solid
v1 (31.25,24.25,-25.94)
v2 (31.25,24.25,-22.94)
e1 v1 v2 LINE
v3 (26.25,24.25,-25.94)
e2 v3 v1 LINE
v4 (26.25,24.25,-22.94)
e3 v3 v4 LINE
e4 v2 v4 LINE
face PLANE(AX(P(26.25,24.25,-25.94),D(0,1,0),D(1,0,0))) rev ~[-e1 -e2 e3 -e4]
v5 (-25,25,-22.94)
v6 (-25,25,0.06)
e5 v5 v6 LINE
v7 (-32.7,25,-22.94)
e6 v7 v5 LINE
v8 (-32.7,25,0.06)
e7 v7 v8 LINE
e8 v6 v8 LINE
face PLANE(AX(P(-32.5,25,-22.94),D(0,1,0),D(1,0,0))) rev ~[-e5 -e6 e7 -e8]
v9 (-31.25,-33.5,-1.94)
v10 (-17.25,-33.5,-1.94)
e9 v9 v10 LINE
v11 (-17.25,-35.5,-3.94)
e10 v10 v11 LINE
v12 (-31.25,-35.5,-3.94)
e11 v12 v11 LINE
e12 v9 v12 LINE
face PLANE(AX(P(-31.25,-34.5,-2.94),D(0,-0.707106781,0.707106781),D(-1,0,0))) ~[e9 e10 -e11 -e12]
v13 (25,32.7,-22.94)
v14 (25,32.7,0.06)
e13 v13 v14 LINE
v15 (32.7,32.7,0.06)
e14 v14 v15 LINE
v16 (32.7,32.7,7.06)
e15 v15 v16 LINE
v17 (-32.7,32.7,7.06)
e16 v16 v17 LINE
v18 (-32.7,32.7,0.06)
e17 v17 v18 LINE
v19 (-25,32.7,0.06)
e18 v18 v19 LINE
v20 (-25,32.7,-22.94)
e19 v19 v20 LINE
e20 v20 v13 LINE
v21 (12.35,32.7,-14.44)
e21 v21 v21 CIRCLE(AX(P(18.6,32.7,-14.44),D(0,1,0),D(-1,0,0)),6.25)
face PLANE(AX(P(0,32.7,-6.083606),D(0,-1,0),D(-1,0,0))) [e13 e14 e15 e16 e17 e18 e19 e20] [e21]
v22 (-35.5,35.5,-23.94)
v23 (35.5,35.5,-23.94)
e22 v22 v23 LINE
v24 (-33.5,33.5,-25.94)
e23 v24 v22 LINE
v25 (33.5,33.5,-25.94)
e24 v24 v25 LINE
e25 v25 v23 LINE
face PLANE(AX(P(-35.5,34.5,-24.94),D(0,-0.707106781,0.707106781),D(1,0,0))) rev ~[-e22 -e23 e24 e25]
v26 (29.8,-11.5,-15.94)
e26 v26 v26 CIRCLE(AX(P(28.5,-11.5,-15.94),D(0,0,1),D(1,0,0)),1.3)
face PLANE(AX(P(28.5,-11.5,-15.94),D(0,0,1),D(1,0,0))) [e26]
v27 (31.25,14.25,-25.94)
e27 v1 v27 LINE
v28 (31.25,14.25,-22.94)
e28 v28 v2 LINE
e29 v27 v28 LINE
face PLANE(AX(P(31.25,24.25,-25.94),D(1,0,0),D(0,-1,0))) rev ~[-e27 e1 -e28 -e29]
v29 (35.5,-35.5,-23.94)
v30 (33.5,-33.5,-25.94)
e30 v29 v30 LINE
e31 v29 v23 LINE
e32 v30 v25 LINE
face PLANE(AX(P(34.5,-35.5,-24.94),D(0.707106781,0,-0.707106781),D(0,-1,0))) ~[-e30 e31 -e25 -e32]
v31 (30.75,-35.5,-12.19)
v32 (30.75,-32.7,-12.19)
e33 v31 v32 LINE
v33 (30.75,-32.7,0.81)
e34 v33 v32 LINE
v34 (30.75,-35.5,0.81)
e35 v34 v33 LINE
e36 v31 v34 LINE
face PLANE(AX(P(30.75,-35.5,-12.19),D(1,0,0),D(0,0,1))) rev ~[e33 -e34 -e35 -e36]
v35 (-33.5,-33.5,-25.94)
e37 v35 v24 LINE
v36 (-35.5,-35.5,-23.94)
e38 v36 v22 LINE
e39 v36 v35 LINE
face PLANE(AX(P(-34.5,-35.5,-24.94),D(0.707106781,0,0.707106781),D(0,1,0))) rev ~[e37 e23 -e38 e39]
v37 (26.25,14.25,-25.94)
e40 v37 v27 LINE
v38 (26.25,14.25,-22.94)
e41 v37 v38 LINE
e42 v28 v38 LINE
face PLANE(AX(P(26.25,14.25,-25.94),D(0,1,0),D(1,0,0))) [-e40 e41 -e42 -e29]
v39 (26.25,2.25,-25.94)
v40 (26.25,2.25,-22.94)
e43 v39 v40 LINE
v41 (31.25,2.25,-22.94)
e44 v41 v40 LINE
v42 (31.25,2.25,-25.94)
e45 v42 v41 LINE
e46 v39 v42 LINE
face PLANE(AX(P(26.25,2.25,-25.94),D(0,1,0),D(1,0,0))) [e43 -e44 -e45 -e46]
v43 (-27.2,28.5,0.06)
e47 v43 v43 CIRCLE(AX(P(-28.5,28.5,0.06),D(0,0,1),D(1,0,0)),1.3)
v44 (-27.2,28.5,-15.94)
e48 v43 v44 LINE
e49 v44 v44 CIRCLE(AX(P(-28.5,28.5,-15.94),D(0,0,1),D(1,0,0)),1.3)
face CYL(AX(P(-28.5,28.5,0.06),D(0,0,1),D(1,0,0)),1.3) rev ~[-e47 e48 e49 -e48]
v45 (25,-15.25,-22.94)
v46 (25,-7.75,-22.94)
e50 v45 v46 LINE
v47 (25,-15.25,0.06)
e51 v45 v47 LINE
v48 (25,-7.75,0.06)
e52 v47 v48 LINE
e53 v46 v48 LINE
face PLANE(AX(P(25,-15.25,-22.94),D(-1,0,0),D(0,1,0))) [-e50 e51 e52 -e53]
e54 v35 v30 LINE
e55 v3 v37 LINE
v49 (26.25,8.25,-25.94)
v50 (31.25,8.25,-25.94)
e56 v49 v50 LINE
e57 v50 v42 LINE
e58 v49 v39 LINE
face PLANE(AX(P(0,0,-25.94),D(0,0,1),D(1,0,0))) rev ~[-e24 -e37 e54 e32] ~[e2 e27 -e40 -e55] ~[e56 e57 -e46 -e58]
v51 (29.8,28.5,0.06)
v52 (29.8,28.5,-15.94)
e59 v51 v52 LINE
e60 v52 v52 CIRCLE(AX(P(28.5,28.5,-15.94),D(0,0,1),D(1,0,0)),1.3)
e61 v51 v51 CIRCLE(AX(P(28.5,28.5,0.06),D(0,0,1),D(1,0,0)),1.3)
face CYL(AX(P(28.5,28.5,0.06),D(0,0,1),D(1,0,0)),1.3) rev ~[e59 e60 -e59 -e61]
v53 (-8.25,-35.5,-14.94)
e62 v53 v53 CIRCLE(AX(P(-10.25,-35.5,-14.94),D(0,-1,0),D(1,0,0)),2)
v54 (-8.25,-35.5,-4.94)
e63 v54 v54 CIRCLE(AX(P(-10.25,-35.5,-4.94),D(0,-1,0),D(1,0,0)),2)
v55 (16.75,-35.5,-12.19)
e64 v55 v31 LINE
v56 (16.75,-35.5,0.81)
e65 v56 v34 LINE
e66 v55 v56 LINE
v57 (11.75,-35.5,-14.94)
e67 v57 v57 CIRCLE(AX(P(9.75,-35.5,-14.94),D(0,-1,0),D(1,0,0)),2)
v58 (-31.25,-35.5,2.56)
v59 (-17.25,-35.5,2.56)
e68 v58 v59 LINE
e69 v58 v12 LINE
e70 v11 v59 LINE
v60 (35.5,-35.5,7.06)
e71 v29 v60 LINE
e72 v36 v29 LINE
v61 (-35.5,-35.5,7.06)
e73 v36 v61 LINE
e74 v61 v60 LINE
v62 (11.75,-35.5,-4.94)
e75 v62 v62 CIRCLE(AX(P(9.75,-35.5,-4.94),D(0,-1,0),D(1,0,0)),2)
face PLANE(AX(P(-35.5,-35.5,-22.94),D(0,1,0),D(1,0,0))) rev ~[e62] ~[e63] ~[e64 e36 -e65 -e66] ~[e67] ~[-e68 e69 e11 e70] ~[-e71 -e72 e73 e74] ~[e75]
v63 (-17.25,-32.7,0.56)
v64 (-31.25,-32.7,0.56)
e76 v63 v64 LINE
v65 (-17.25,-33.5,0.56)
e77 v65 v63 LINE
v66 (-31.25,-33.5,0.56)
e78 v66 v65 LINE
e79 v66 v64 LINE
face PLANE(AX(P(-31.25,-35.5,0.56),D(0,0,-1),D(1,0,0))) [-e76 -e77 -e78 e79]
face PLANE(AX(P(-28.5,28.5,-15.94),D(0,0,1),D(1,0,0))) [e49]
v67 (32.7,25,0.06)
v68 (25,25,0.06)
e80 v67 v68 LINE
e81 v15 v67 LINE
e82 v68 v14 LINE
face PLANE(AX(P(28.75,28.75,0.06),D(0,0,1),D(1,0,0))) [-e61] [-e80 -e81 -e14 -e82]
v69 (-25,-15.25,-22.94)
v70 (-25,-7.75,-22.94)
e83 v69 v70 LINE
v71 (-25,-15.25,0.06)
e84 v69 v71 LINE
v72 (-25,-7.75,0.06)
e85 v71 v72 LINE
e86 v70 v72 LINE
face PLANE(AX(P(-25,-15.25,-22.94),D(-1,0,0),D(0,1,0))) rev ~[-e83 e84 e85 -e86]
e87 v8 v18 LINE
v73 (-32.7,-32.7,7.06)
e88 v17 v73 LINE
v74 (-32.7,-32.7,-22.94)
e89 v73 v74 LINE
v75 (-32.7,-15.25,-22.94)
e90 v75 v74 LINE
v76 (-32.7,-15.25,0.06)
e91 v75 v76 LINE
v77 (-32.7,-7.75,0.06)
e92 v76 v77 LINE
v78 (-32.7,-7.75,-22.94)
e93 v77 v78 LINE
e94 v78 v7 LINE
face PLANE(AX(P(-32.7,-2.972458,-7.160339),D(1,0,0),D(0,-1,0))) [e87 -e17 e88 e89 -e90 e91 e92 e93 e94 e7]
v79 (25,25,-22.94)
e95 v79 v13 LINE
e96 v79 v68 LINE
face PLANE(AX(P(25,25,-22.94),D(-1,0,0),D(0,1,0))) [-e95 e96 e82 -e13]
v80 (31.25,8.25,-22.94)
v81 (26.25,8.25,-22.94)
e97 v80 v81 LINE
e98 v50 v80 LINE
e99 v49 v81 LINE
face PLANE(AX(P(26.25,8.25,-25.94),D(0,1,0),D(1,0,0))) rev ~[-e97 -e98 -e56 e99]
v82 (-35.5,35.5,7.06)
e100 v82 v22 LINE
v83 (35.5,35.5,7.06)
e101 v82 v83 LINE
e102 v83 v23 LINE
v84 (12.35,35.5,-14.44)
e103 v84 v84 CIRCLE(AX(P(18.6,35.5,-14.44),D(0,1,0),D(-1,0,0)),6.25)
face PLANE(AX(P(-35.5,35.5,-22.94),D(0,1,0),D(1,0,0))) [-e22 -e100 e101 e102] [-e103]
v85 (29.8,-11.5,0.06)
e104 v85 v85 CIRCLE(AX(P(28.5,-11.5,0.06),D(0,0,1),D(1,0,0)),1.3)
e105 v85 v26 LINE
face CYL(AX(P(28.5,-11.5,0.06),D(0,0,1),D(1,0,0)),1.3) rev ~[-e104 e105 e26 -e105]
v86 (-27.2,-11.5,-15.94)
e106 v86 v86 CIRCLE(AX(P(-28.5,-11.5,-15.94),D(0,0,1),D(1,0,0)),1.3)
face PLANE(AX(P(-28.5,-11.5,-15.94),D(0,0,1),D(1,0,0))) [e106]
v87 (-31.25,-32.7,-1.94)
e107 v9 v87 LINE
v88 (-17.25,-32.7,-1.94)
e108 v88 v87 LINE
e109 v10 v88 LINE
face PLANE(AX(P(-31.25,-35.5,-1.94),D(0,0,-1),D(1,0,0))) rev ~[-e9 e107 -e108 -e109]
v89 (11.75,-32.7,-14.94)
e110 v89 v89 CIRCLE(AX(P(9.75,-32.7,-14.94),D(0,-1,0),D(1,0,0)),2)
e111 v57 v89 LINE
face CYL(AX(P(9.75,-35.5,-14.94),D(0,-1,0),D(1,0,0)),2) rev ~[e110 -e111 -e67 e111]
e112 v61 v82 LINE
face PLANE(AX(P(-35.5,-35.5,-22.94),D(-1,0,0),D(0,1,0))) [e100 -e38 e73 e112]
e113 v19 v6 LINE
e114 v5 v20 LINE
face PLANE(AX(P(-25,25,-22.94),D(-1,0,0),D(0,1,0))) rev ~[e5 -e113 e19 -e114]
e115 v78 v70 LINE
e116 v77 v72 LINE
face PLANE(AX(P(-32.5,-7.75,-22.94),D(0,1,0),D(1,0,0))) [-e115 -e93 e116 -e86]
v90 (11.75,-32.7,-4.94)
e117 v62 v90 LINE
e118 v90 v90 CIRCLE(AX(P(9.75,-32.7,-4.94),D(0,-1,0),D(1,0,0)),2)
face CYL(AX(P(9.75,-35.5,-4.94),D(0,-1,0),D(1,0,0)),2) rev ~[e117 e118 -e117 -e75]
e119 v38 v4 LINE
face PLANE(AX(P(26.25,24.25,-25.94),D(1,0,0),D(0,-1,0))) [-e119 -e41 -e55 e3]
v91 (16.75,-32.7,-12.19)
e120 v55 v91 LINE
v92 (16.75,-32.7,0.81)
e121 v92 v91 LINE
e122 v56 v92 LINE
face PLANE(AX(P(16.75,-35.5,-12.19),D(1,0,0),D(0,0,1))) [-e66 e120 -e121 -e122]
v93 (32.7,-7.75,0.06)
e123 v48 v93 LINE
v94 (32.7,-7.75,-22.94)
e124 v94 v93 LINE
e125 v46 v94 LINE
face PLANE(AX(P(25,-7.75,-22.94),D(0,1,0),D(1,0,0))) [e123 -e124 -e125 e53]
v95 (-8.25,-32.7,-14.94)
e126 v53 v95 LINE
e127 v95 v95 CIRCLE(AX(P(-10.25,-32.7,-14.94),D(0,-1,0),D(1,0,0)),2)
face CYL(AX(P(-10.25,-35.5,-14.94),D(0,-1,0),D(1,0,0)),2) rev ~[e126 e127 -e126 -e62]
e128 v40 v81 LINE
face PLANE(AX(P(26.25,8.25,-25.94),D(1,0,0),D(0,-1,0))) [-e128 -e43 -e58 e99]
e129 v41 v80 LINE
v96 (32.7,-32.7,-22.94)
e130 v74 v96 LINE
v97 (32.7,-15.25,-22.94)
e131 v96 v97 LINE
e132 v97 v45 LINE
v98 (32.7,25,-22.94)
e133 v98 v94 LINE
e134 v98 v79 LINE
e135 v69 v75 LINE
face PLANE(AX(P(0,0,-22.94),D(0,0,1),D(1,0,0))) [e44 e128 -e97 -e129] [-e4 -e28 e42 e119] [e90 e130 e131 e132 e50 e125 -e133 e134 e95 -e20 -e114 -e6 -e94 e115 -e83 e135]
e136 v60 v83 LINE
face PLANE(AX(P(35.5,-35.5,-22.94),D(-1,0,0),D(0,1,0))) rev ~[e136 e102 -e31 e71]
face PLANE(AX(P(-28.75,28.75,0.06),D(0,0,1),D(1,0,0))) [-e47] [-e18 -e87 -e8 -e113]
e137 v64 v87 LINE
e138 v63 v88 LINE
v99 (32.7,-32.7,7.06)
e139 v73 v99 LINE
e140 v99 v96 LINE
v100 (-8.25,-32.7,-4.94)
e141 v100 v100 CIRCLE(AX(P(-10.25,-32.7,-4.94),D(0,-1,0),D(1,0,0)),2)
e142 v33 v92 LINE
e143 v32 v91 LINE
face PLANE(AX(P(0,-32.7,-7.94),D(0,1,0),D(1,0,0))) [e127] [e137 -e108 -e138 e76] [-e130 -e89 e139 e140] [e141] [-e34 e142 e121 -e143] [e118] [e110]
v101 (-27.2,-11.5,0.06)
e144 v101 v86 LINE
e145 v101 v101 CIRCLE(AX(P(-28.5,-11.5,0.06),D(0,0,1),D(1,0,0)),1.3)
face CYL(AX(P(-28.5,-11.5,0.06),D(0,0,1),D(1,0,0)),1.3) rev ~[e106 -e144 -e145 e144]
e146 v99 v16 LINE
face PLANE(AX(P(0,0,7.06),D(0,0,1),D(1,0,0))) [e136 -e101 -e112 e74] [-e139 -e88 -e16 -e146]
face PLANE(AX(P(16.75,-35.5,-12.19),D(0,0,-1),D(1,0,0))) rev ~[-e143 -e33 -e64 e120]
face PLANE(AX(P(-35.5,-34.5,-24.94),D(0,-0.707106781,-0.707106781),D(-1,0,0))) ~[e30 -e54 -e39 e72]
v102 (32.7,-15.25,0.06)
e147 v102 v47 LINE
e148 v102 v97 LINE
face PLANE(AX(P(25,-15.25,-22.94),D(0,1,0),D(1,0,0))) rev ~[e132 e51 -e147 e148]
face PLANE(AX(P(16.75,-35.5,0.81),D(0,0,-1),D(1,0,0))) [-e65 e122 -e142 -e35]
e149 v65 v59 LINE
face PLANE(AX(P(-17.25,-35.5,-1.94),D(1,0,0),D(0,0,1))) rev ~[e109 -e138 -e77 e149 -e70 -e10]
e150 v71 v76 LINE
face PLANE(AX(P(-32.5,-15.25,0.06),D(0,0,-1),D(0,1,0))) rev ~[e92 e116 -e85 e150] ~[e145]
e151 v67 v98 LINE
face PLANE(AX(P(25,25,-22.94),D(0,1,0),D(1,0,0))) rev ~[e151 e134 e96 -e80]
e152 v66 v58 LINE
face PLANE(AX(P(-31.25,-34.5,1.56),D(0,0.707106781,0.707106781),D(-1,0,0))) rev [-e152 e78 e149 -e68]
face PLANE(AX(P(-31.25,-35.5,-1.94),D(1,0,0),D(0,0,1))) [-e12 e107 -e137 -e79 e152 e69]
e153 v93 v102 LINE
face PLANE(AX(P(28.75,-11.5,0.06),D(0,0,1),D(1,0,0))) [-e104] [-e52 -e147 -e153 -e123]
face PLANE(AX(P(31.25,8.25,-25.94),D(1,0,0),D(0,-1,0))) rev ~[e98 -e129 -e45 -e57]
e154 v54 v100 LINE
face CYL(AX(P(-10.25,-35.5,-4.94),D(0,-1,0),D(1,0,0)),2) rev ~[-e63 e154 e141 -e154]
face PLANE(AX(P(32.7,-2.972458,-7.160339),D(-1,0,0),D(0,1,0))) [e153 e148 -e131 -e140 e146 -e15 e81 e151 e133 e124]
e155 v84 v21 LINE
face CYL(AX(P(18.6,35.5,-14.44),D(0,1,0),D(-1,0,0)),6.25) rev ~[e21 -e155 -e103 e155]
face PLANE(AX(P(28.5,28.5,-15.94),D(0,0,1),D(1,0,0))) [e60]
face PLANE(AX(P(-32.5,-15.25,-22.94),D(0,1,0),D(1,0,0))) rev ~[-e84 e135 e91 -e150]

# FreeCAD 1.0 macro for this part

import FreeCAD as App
import Part
import Sketcher

V = App.Vector
Q = App.Units.Quantity


def edges_at(feature, points):
    """Names of the edges that pass closest to the given points."""
    edges = feature.Shape.Edges
    near = lambda p: min(range(len(edges)), key=lambda i: edges[i].distToShape(Part.Vertex(*p))[0])
    return sorted({f"Edge{near(p) + 1}" for p in points})

doc = App.newDocument("Part")
params = doc.addObject("Spreadsheet::Sheet", "Params")
for row, (alias, value) in enumerate([
    ("sketch1_width", "71 mm"),
    ("pad1_length", "3 mm"),
    ("sketch2_width", "71 mm"),
    ("sketch2_width2", "65 mm"),
    ("pad2_length", "30 mm"),
    ("sketch3_width", "7.5 mm"),
    ("pad3_length", "23 mm"),
    ("sketch4_diameter", "2.6 mm"),
    ("pocket1_length", "16 mm"),
    ("sketch5_width", "65 mm"),
    ("sketch5_height", "23 mm"),
    ("sketch5_height2", "7 mm"),
    ("sketch5_width2", "7.5 mm"),
    ("sketch5_width3", "17.25 mm"),
    ("pocket2_length", "0.2 mm"),
    ("sketch6_width", "65 mm"),
    ("sketch6_height", "23 mm"),
    ("sketch6_height2", "30 mm"),
    ("sketch6_width2", "7.5 mm"),
    ("sketch6_width3", "32.75 mm"),
    ("pocket3_length", "0.2 mm"),
    ("sketch7_width", "50 mm"),
    ("sketch7_height", "23 mm"),
    ("sketch7_height2", "7 mm"),
    ("sketch7_width2", "7.7 mm"),
    ("pocket4_length", "0.2 mm"),
    ("sketch8_height", "30 mm"),
    ("sketch8_width", "65.4 mm"),
    ("pocket5_length", "0.2 mm"),
    ("sketch9_width", "14 mm"),
    ("sketch9_height", "13 mm"),
    ("sketch9_height2", "2.5 mm"),
    ("pocket6_length", "5 mm"),
    ("chamfer_size", "2 mm"),
    ("sketch10_diameter", "12.5 mm"),
    ("pocket7_length", "5 mm"),
    ("sketch11_width", "5 mm"),
    ("sketch11_height", "10 mm"),
    ("sketch11_height2", "6 mm"),
    ("pocket8_length", "5 mm"),
    ("chamfer2_size", "2 mm"),
    ("sketch12_diameter", "4 mm"),
    ("pocket9_length", "5 mm"),
], start=1):
    params.set(f"A{row}", alias)
    params.set(f"B{row}", "=" + value)
    params.setAlias(f"B{row}", alias)

body = doc.addObject("PartDesign::Body", "Body")

sketch1 = body.newObject("Sketcher::SketchObject", "Sketch")
sketch1.AttachmentSupport = (doc.getObject("XY_Plane"), [""])
sketch1.MapMode = "FlatFace"
sketch1.addGeometry(Part.LineSegment(V(-35.5, 35.5, 0), V(-35.5, -35.5, 0)), False)
sketch1.addGeometry(Part.LineSegment(V(-35.5, -35.5, 0), V(35.5, -35.5, 0)), False)
sketch1.addGeometry(Part.LineSegment(V(35.5, -35.5, 0), V(35.5, 35.5, 0)), False)
sketch1.addGeometry(Part.LineSegment(V(35.5, 35.5, 0), V(-35.5, 35.5, 0)), False)
sketch1.addConstraint(Sketcher.Constraint("Coincident", 0, 2, 1, 1))
sketch1.addConstraint(Sketcher.Constraint("Coincident", 1, 2, 2, 1))
sketch1.addConstraint(Sketcher.Constraint("Coincident", 2, 2, 3, 1))
sketch1.addConstraint(Sketcher.Constraint("Coincident", 3, 2, 0, 1))
sketch1.addConstraint(Sketcher.Constraint("Vertical", 0))
sketch1.addConstraint(Sketcher.Constraint("Horizontal", 1))
sketch1.addConstraint(Sketcher.Constraint("Vertical", 2))
sketch1.addConstraint(Sketcher.Constraint("Horizontal", 3))
sketch1.addConstraint(Sketcher.Constraint("Symmetric", 0, 2, 2, 2, -1, 1))
sketch1.addConstraint(Sketcher.Constraint("Equal", 3, 0))
sketch1.addConstraint(Sketcher.Constraint("DistanceX", 1, 1, 1, 2, Q("71 mm")))
sketch1.setExpression("Constraints[10]", "Params.sketch1_width")
pad1 = body.newObject("PartDesign::Pad", "Pad")
pad1.Profile = sketch1
pad1.setExpression("Length", "Params.pad1_length")

sketch2 = body.newObject("Sketcher::SketchObject", "Sketch001")
sketch2.AttachmentSupport = (doc.getObject("XY_Plane"), [""])
sketch2.MapMode = "FlatFace"
sketch2.AttachmentOffset = App.Placement(V(0, 0, 3), App.Rotation())
sketch2.addGeometry(Part.LineSegment(V(-35.5, 35.5, 0), V(-35.5, -35.5, 0)), False)
sketch2.addGeometry(Part.LineSegment(V(-35.5, -35.5, 0), V(35.5, -35.5, 0)), False)
sketch2.addGeometry(Part.LineSegment(V(35.5, -35.5, 0), V(35.5, 35.5, 0)), False)
sketch2.addGeometry(Part.LineSegment(V(35.5, 35.5, 0), V(-35.5, 35.5, 0)), False)
sketch2.addGeometry(Part.LineSegment(V(32.5, -32.5, 0), V(-32.5, -32.5, 0)), False)
sketch2.addGeometry(Part.LineSegment(V(-32.5, -32.5, 0), V(-32.5, 32.5, 0)), False)
sketch2.addGeometry(Part.LineSegment(V(-32.5, 32.5, 0), V(32.5, 32.5, 0)), False)
sketch2.addGeometry(Part.LineSegment(V(32.5, 32.5, 0), V(32.5, -32.5, 0)), False)
sketch2.addConstraint(Sketcher.Constraint("Coincident", 0, 2, 1, 1))
sketch2.addConstraint(Sketcher.Constraint("Coincident", 1, 2, 2, 1))
sketch2.addConstraint(Sketcher.Constraint("Coincident", 2, 2, 3, 1))
sketch2.addConstraint(Sketcher.Constraint("Coincident", 3, 2, 0, 1))
sketch2.addConstraint(Sketcher.Constraint("Coincident", 4, 2, 5, 1))
sketch2.addConstraint(Sketcher.Constraint("Coincident", 5, 2, 6, 1))
sketch2.addConstraint(Sketcher.Constraint("Coincident", 6, 2, 7, 1))
sketch2.addConstraint(Sketcher.Constraint("Coincident", 7, 2, 4, 1))
sketch2.addConstraint(Sketcher.Constraint("Vertical", 0))
sketch2.addConstraint(Sketcher.Constraint("Horizontal", 1))
sketch2.addConstraint(Sketcher.Constraint("Vertical", 2))
sketch2.addConstraint(Sketcher.Constraint("Horizontal", 3))
sketch2.addConstraint(Sketcher.Constraint("Horizontal", 4))
sketch2.addConstraint(Sketcher.Constraint("Vertical", 5))
sketch2.addConstraint(Sketcher.Constraint("Horizontal", 6))
sketch2.addConstraint(Sketcher.Constraint("Vertical", 7))
sketch2.addConstraint(Sketcher.Constraint("Symmetric", 0, 2, 2, 2, -1, 1))
sketch2.addConstraint(Sketcher.Constraint("Symmetric", 4, 2, 6, 2, -1, 1))
sketch2.addConstraint(Sketcher.Constraint("Equal", 3, 0))
sketch2.addConstraint(Sketcher.Constraint("Equal", 6, 5))
sketch2.addConstraint(Sketcher.Constraint("DistanceX", 1, 1, 1, 2, Q("71 mm")))
sketch2.addConstraint(Sketcher.Constraint("DistanceX", 4, 2, 4, 1, Q("65 mm")))
sketch2.setExpression("Constraints[20]", "Params.sketch2_width")
sketch2.setExpression("Constraints[21]", "Params.sketch2_width2")
pad2 = body.newObject("PartDesign::Pad", "Pad001")
pad2.Profile = sketch2
pad2.setExpression("Length", "Params.pad2_length")

sketch3 = body.newObject("Sketcher::SketchObject", "Sketch002")
sketch3.AttachmentSupport = (doc.getObject("XY_Plane"), [""])
sketch3.MapMode = "FlatFace"
sketch3.AttachmentOffset = App.Placement(V(0, 0, 3), App.Rotation())
sketch3.addGeometry(Part.LineSegment(V(-32.5, 32.5, 0), V(-32.5, 25, 0)), False)
sketch3.addGeometry(Part.LineSegment(V(-32.5, 25, 0), V(-25, 25, 0)), False)
sketch3.addGeometry(Part.LineSegment(V(-25, 25, 0), V(-25, 32.5, 0)), False)
sketch3.addGeometry(Part.LineSegment(V(-25, 32.5, 0), V(-32.5, 32.5, 0)), False)
sketch3.addGeometry(Part.LineSegment(V(25, 32.5, 0), V(25, 25, 0)), False)
sketch3.addGeometry(Part.LineSegment(V(25, 25, 0), V(32.5, 25, 0)), False)
sketch3.addGeometry(Part.LineSegment(V(32.5, 25, 0), V(32.5, 32.5, 0)), False)
sketch3.addGeometry(Part.LineSegment(V(32.5, 32.5, 0), V(25, 32.5, 0)), False)
sketch3.addGeometry(Part.LineSegment(V(25, -7.75, 0), V(25, -15.25, 0)), False)
sketch3.addGeometry(Part.LineSegment(V(25, -15.25, 0), V(32.5, -15.25, 0)), False)
sketch3.addGeometry(Part.LineSegment(V(32.5, -15.25, 0), V(32.5, -7.75, 0)), False)
sketch3.addGeometry(Part.LineSegment(V(32.5, -7.75, 0), V(25, -7.75, 0)), False)
sketch3.addGeometry(Part.LineSegment(V(-32.5, -7.75, 0), V(-32.5, -15.25, 0)), False)
sketch3.addGeometry(Part.LineSegment(V(-32.5, -15.25, 0), V(-25, -15.25, 0)), False)
sketch3.addGeometry(Part.LineSegment(V(-25, -15.25, 0), V(-25, -7.75, 0)), False)
sketch3.addGeometry(Part.LineSegment(V(-25, -7.75, 0), V(-32.5, -7.75, 0)), False)
sketch3.addConstraint(Sketcher.Constraint("Coincident", 0, 2, 1, 1))
sketch3.addConstraint(Sketcher.Constraint("Coincident", 1, 2, 2, 1))
sketch3.addConstraint(Sketcher.Constraint("Coincident", 2, 2, 3, 1))
sketch3.addConstraint(Sketcher.Constraint("Coincident", 3, 2, 0, 1))
sketch3.addConstraint(Sketcher.Constraint("Coincident", 4, 2, 5, 1))
sketch3.addConstraint(Sketcher.Constraint("Coincident", 5, 2, 6, 1))
sketch3.addConstraint(Sketcher.Constraint("Coincident", 6, 2, 7, 1))
sketch3.addConstraint(Sketcher.Constraint("Coincident", 7, 2, 4, 1))
sketch3.addConstraint(Sketcher.Constraint("Coincident", 8, 2, 9, 1))
sketch3.addConstraint(Sketcher.Constraint("Coincident", 9, 2, 10, 1))
sketch3.addConstraint(Sketcher.Constraint("Coincident", 10, 2, 11, 1))
sketch3.addConstraint(Sketcher.Constraint("Coincident", 11, 2, 8, 1))
sketch3.addConstraint(Sketcher.Constraint("Coincident", 12, 2, 13, 1))
sketch3.addConstraint(Sketcher.Constraint("Coincident", 13, 2, 14, 1))
sketch3.addConstraint(Sketcher.Constraint("Coincident", 14, 2, 15, 1))
sketch3.addConstraint(Sketcher.Constraint("Coincident", 15, 2, 12, 1))
sketch3.addConstraint(Sketcher.Constraint("Vertical", 0))
sketch3.addConstraint(Sketcher.Constraint("Horizontal", 1))
sketch3.addConstraint(Sketcher.Constraint("Vertical", 2))
sketch3.addConstraint(Sketcher.Constraint("Horizontal", 3))
sketch3.addConstraint(Sketcher.Constraint("Vertical", 4))
sketch3.addConstraint(Sketcher.Constraint("Horizontal", 5))
sketch3.addConstraint(Sketcher.Constraint("Vertical", 6))
sketch3.addConstraint(Sketcher.Constraint("Horizontal", 7))
sketch3.addConstraint(Sketcher.Constraint("Vertical", 8))
sketch3.addConstraint(Sketcher.Constraint("Horizontal", 9))
sketch3.addConstraint(Sketcher.Constraint("Vertical", 10))
sketch3.addConstraint(Sketcher.Constraint("Horizontal", 11))
sketch3.addConstraint(Sketcher.Constraint("Vertical", 12))
sketch3.addConstraint(Sketcher.Constraint("Horizontal", 13))
sketch3.addConstraint(Sketcher.Constraint("Vertical", 14))
sketch3.addConstraint(Sketcher.Constraint("Horizontal", 15))
sketch3.addConstraint(Sketcher.Constraint("Symmetric", 1, 2, 4, 2, -2))
sketch3.addConstraint(Sketcher.Constraint("Symmetric", 3, 2, 6, 2, -2))
sketch3.addConstraint(Sketcher.Constraint("Symmetric", 9, 2, 12, 2, -2))
sketch3.addConstraint(Sketcher.Constraint("Symmetric", 11, 2, 14, 2, -2))
sketch3.addConstraint(Sketcher.Constraint("Vertical", 7, 2, 8, 2))
sketch3.addConstraint(Sketcher.Constraint("Vertical", 6, 2, 9, 2))
sketch3.addConstraint(Sketcher.Constraint("Equal", 15, 0))
sketch3.addConstraint(Sketcher.Constraint("Equal", 6, 8))
sketch3.addConstraint(Sketcher.Constraint("DistanceX", 1, 1, 1, 2, Q("7.5 mm")))
sketch3.addConstraint(Sketcher.Constraint("DistanceY", -1, 1, 0, 2, Q("25 mm")))
sketch3.addConstraint(Sketcher.Constraint("DistanceX", 1, 2, -1, 1, Q("25 mm")))
sketch3.addConstraint(Sketcher.Constraint("DistanceY", 8, 2, -1, 1, Q("15.25 mm")))
sketch3.setExpression("Constraints[40]", "Params.sketch3_width")
pad3 = body.newObject("PartDesign::Pad", "Pad002")
pad3.Profile = sketch3
pad3.setExpression("Length", "Params.pad3_length")

sketch4 = body.newObject("Sketcher::SketchObject", "Sketch003")
sketch4.AttachmentSupport = (doc.getObject("XY_Plane"), [""])
sketch4.MapMode = "FlatFace"
sketch4.AttachmentOffset = App.Placement(V(0, 0, 26), App.Rotation())
sketch4.addGeometry(Part.Circle(V(-28.5, 28.5, 0), V(0, 0, 1), 1.3), False)
sketch4.addGeometry(Part.Circle(V(28.5, 28.5, 0), V(0, 0, 1), 1.3), False)
sketch4.addGeometry(Part.Circle(V(28.5, -11.5, 0), V(0, 0, 1), 1.3), False)
sketch4.addGeometry(Part.Circle(V(-28.5, -11.5, 0), V(0, 0, 1), 1.3), False)
sketch4.addConstraint(Sketcher.Constraint("Equal", 0, 1))
sketch4.addConstraint(Sketcher.Constraint("Equal", 1, 2))
sketch4.addConstraint(Sketcher.Constraint("Equal", 2, 3))
sketch4.addConstraint(Sketcher.Constraint("Symmetric", 0, 3, 1, 3, -2))
sketch4.addConstraint(Sketcher.Constraint("Symmetric", 2, 3, 3, 3, -2))
sketch4.addConstraint(Sketcher.Constraint("Vertical", 1, 3, 2, 3))
sketch4.addConstraint(Sketcher.Constraint("Diameter", 0, Q("2.6 mm")))
sketch4.addConstraint(Sketcher.Constraint("DistanceX", 0, 3, 1, 3, Q("57 mm")))
sketch4.addConstraint(Sketcher.Constraint("DistanceY", 2, 3, 1, 3, Q("40 mm")))
sketch4.addConstraint(Sketcher.Constraint("DistanceY", -1, 1, 0, 3, Q("28.5 mm")))
sketch4.setExpression("Constraints[6]", "Params.sketch4_diameter")
pocket1 = body.newObject("PartDesign::Pocket", "Pocket")
pocket1.Profile = sketch4
pocket1.setExpression("Length", "Params.pocket1_length")

sketch5 = body.newObject("Sketcher::SketchObject", "Sketch004")
sketch5.AttachmentSupport = (doc.getObject("YZ_Plane"), [""])
sketch5.MapMode = "FlatFace"
sketch5.AttachmentOffset = App.Placement(V(0, 0, -32.5), App.Rotation())
sketch5.addGeometry(Part.LineSegment(V(-32.5, 3, 0), V(-15.25, 3, 0)), False)
sketch5.addGeometry(Part.LineSegment(V(-15.25, 3, 0), V(-15.25, 26, 0)), False)
sketch5.addGeometry(Part.LineSegment(V(-15.25, 26, 0), V(-7.75, 26, 0)), False)
sketch5.addGeometry(Part.LineSegment(V(-7.75, 26, 0), V(-7.75, 3, 0)), False)
sketch5.addGeometry(Part.LineSegment(V(-7.75, 3, 0), V(25, 3, 0)), False)
sketch5.addGeometry(Part.LineSegment(V(25, 3, 0), V(25, 26, 0)), False)
sketch5.addGeometry(Part.LineSegment(V(25, 26, 0), V(32.5, 26, 0)), False)
sketch5.addGeometry(Part.LineSegment(V(32.5, 26, 0), V(32.5, 33, 0)), False)
sketch5.addGeometry(Part.LineSegment(V(32.5, 33, 0), V(-32.5, 33, 0)), False)
sketch5.addGeometry(Part.LineSegment(V(-32.5, 33, 0), V(-32.5, 3, 0)), False)
sketch5.addConstraint(Sketcher.Constraint("Coincident", 0, 2, 1, 1))
sketch5.addConstraint(Sketcher.Constraint("Coincident", 1, 2, 2, 1))
sketch5.addConstraint(Sketcher.Constraint("Coincident", 2, 2, 3, 1))
sketch5.addConstraint(Sketcher.Constraint("Coincident", 3, 2, 4, 1))
sketch5.addConstraint(Sketcher.Constraint("Coincident", 4, 2, 5, 1))
sketch5.addConstraint(Sketcher.Constraint("Coincident", 5, 2, 6, 1))
sketch5.addConstraint(Sketcher.Constraint("Coincident", 6, 2, 7, 1))
sketch5.addConstraint(Sketcher.Constraint("Coincident", 7, 2, 8, 1))
sketch5.addConstraint(Sketcher.Constraint("Coincident", 8, 2, 9, 1))
sketch5.addConstraint(Sketcher.Constraint("Coincident", 9, 2, 0, 1))
sketch5.addConstraint(Sketcher.Constraint("Horizontal", 0))
sketch5.addConstraint(Sketcher.Constraint("Vertical", 1))
sketch5.addConstraint(Sketcher.Constraint("Horizontal", 2))
sketch5.addConstraint(Sketcher.Constraint("Vertical", 3))
sketch5.addConstraint(Sketcher.Constraint("Horizontal", 4))
sketch5.addConstraint(Sketcher.Constraint("Vertical", 5))
sketch5.addConstraint(Sketcher.Constraint("Horizontal", 6))
sketch5.addConstraint(Sketcher.Constraint("Vertical", 7))
sketch5.addConstraint(Sketcher.Constraint("Horizontal", 8))
sketch5.addConstraint(Sketcher.Constraint("Vertical", 9))
sketch5.addConstraint(Sketcher.Constraint("Horizontal", 0, 2, 3, 2))
sketch5.addConstraint(Sketcher.Constraint("Horizontal", 2, 2, 5, 2))
sketch5.addConstraint(Sketcher.Constraint("Equal", 2, 6))
sketch5.addConstraint(Sketcher.Constraint("DistanceX", 8, 2, 8, 1, Q("65 mm")))
sketch5.addConstraint(Sketcher.Constraint("DistanceY", 1, 1, 1, 2, Q("23 mm")))
sketch5.addConstraint(Sketcher.Constraint("DistanceY", 7, 1, 7, 2, Q("7 mm")))
sketch5.addConstraint(Sketcher.Constraint("DistanceX", 2, 1, 2, 2, Q("7.5 mm")))
sketch5.addConstraint(Sketcher.Constraint("DistanceY", -1, 1, 0, 2, Q("3 mm")))
sketch5.addConstraint(Sketcher.Constraint("DistanceX", -1, 1, 4, 2, Q("25 mm")))
sketch5.addConstraint(Sketcher.Constraint("DistanceX", 0, 1, 0, 2, Q("17.25 mm")))
sketch5.setExpression("Constraints[23]", "Params.sketch5_width")
sketch5.setExpression("Constraints[24]", "Params.sketch5_height")
sketch5.setExpression("Constraints[25]", "Params.sketch5_height2")
sketch5.setExpression("Constraints[26]", "Params.sketch5_width2")
sketch5.setExpression("Constraints[29]", "Params.sketch5_width3")
pocket2 = body.newObject("PartDesign::Pocket", "Pocket001")
pocket2.Profile = sketch5
pocket2.setExpression("Length", "Params.pocket2_length")

sketch6 = body.newObject("Sketcher::SketchObject", "Sketch005")
sketch6.AttachmentSupport = (doc.getObject("YZ_Plane"), [""])
sketch6.MapMode = "FlatFace"
sketch6.AttachmentOffset = App.Placement(V(0, 0, 32.5), App.Rotation())
sketch6.addGeometry(Part.LineSegment(V(32.5, 26, 0), V(25, 26, 0)), False)
sketch6.addGeometry(Part.LineSegment(V(25, 26, 0), V(25, 3, 0)), False)
sketch6.addGeometry(Part.LineSegment(V(25, 3, 0), V(-7.75, 3, 0)), False)
sketch6.addGeometry(Part.LineSegment(V(-7.75, 3, 0), V(-7.75, 26, 0)), False)
sketch6.addGeometry(Part.LineSegment(V(-7.75, 26, 0), V(-15.25, 26, 0)), False)
sketch6.addGeometry(Part.LineSegment(V(-15.25, 26, 0), V(-15.25, 3, 0)), False)
sketch6.addGeometry(Part.LineSegment(V(-15.25, 3, 0), V(-32.5, 3, 0)), False)
sketch6.addGeometry(Part.LineSegment(V(-32.5, 3, 0), V(-32.5, 33, 0)), False)
sketch6.addGeometry(Part.LineSegment(V(-32.5, 33, 0), V(32.5, 33, 0)), False)
sketch6.addGeometry(Part.LineSegment(V(32.5, 33, 0), V(32.5, 26, 0)), False)
sketch6.addConstraint(Sketcher.Constraint("Coincident", 0, 2, 1, 1))
sketch6.addConstraint(Sketcher.Constraint("Coincident", 1, 2, 2, 1))
sketch6.addConstraint(Sketcher.Constraint("Coincident", 2, 2, 3, 1))
sketch6.addConstraint(Sketcher.Constraint("Coincident", 3, 2, 4, 1))
sketch6.addConstraint(Sketcher.Constraint("Coincident", 4, 2, 5, 1))
sketch6.addConstraint(Sketcher.Constraint("Coincident", 5, 2, 6, 1))
sketch6.addConstraint(Sketcher.Constraint("Coincident", 6, 2, 7, 1))
sketch6.addConstraint(Sketcher.Constraint("Coincident", 7, 2, 8, 1))
sketch6.addConstraint(Sketcher.Constraint("Coincident", 8, 2, 9, 1))
sketch6.addConstraint(Sketcher.Constraint("Coincident", 9, 2, 0, 1))
sketch6.addConstraint(Sketcher.Constraint("Horizontal", 0))
sketch6.addConstraint(Sketcher.Constraint("Vertical", 1))
sketch6.addConstraint(Sketcher.Constraint("Horizontal", 2))
sketch6.addConstraint(Sketcher.Constraint("Vertical", 3))
sketch6.addConstraint(Sketcher.Constraint("Horizontal", 4))
sketch6.addConstraint(Sketcher.Constraint("Vertical", 5))
sketch6.addConstraint(Sketcher.Constraint("Horizontal", 6))
sketch6.addConstraint(Sketcher.Constraint("Vertical", 7))
sketch6.addConstraint(Sketcher.Constraint("Horizontal", 8))
sketch6.addConstraint(Sketcher.Constraint("Vertical", 9))
sketch6.addConstraint(Sketcher.Constraint("Horizontal", 0, 2, 3, 2))
sketch6.addConstraint(Sketcher.Constraint("Horizontal", 2, 2, 5, 2))
sketch6.addConstraint(Sketcher.Constraint("Equal", 0, 4))
sketch6.addConstraint(Sketcher.Constraint("DistanceX", 8, 1, 8, 2, Q("65 mm")))
sketch6.addConstraint(Sketcher.Constraint("DistanceY", 1, 2, 1, 1, Q("23 mm")))
sketch6.addConstraint(Sketcher.Constraint("DistanceY", 7, 1, 7, 2, Q("30 mm")))
sketch6.addConstraint(Sketcher.Constraint("DistanceX", 0, 2, 0, 1, Q("7.5 mm")))
sketch6.addConstraint(Sketcher.Constraint("DistanceX", -1, 1, 0, 2, Q("25 mm")))
sketch6.addConstraint(Sketcher.Constraint("DistanceY", -1, 1, 0, 2, Q("26 mm")))
sketch6.addConstraint(Sketcher.Constraint("DistanceX", 2, 2, 2, 1, Q("32.75 mm")))
sketch6.setExpression("Constraints[23]", "Params.sketch6_width")
sketch6.setExpression("Constraints[24]", "Params.sketch6_height")
sketch6.setExpression("Constraints[25]", "Params.sketch6_height2")
sketch6.setExpression("Constraints[26]", "Params.sketch6_width2")
sketch6.setExpression("Constraints[29]", "Params.sketch6_width3")
pocket3 = body.newObject("PartDesign::Pocket", "Pocket002")
pocket3.Profile = sketch6
pocket3.setExpression("Length", "Params.pocket3_length")
pocket3.Reversed = True

sketch7 = body.newObject("Sketcher::SketchObject", "Sketch006")
sketch7.AttachmentSupport = (doc.getObject("XZ_Plane"), [""])
sketch7.MapMode = "FlatFace"
sketch7.AttachmentOffset = App.Placement(V(0, 0, -32.5), App.Rotation())
sketch7.addGeometry(Part.LineSegment(V(-32.7, 26, 0), V(-25, 26, 0)), False)
sketch7.addGeometry(Part.LineSegment(V(-25, 26, 0), V(-25, 3, 0)), False)
sketch7.addGeometry(Part.LineSegment(V(-25, 3, 0), V(25, 3, 0)), False)
sketch7.addGeometry(Part.LineSegment(V(25, 3, 0), V(25, 26, 0)), False)
sketch7.addGeometry(Part.LineSegment(V(25, 26, 0), V(32.7, 26, 0)), False)
sketch7.addGeometry(Part.LineSegment(V(32.7, 26, 0), V(32.7, 33, 0)), False)
sketch7.addGeometry(Part.LineSegment(V(32.7, 33, 0), V(-32.7, 33, 0)), False)
sketch7.addGeometry(Part.LineSegment(V(-32.7, 33, 0), V(-32.7, 26, 0)), False)
sketch7.addConstraint(Sketcher.Constraint("Coincident", 0, 2, 1, 1))
sketch7.addConstraint(Sketcher.Constraint("Coincident", 1, 2, 2, 1))
sketch7.addConstraint(Sketcher.Constraint("Coincident", 2, 2, 3, 1))
sketch7.addConstraint(Sketcher.Constraint("Coincident", 3, 2, 4, 1))
sketch7.addConstraint(Sketcher.Constraint("Coincident", 4, 2, 5, 1))
sketch7.addConstraint(Sketcher.Constraint("Coincident", 5, 2, 6, 1))
sketch7.addConstraint(Sketcher.Constraint("Coincident", 6, 2, 7, 1))
sketch7.addConstraint(Sketcher.Constraint("Coincident", 7, 2, 0, 1))
sketch7.addConstraint(Sketcher.Constraint("Horizontal", 0))
sketch7.addConstraint(Sketcher.Constraint("Vertical", 1))
sketch7.addConstraint(Sketcher.Constraint("Horizontal", 2))
sketch7.addConstraint(Sketcher.Constraint("Vertical", 3))
sketch7.addConstraint(Sketcher.Constraint("Horizontal", 4))
sketch7.addConstraint(Sketcher.Constraint("Vertical", 5))
sketch7.addConstraint(Sketcher.Constraint("Horizontal", 6))
sketch7.addConstraint(Sketcher.Constraint("Vertical", 7))
sketch7.addConstraint(Sketcher.Constraint("Symmetric", 0, 2, 3, 2, -2))
sketch7.addConstraint(Sketcher.Constraint("Equal", 0, 4))
sketch7.addConstraint(Sketcher.Constraint("DistanceX", 2, 1, 2, 2, Q("50 mm")))
sketch7.addConstraint(Sketcher.Constraint("DistanceY", 1, 2, 1, 1, Q("23 mm")))
sketch7.addConstraint(Sketcher.Constraint("DistanceY", 5, 1, 5, 2, Q("7 mm")))
sketch7.addConstraint(Sketcher.Constraint("DistanceX", 0, 1, 0, 2, Q("7.7 mm")))
sketch7.addConstraint(Sketcher.Constraint("DistanceY", -1, 1, 0, 2, Q("26 mm")))
sketch7.setExpression("Constraints[18]", "Params.sketch7_width")
sketch7.setExpression("Constraints[19]", "Params.sketch7_height")
sketch7.setExpression("Constraints[20]", "Params.sketch7_height2")
sketch7.setExpression("Constraints[21]", "Params.sketch7_width2")
pocket4 = body.newObject("PartDesign::Pocket", "Pocket003")
pocket4.Profile = sketch7
pocket4.setExpression("Length", "Params.pocket4_length")

sketch8 = body.newObject("Sketcher::SketchObject", "Sketch007")
sketch8.AttachmentSupport = (doc.getObject("XZ_Plane"), [""])
sketch8.MapMode = "FlatFace"
sketch8.AttachmentOffset = App.Placement(V(0, 0, 32.5), App.Rotation())
sketch8.addGeometry(Part.LineSegment(V(-32.7, 3, 0), V(-32.7, 33, 0)), False)
sketch8.addGeometry(Part.LineSegment(V(-32.7, 33, 0), V(32.7, 33, 0)), False)
sketch8.addGeometry(Part.LineSegment(V(32.7, 33, 0), V(32.7, 3, 0)), False)
sketch8.addGeometry(Part.LineSegment(V(32.7, 3, 0), V(-32.7, 3, 0)), False)
sketch8.addConstraint(Sketcher.Constraint("Coincident", 0, 2, 1, 1))
sketch8.addConstraint(Sketcher.Constraint("Coincident", 1, 2, 2, 1))
sketch8.addConstraint(Sketcher.Constraint("Coincident", 2, 2, 3, 1))
sketch8.addConstraint(Sketcher.Constraint("Coincident", 3, 2, 0, 1))
sketch8.addConstraint(Sketcher.Constraint("Vertical", 0))
sketch8.addConstraint(Sketcher.Constraint("Horizontal", 1))
sketch8.addConstraint(Sketcher.Constraint("Vertical", 2))
sketch8.addConstraint(Sketcher.Constraint("Horizontal", 3))
sketch8.addConstraint(Sketcher.Constraint("DistanceY", 0, 1, 0, 2, Q("30 mm")))
sketch8.addConstraint(Sketcher.Constraint("DistanceX", 1, 1, 1, 2, Q("65.4 mm")))
sketch8.addConstraint(Sketcher.Constraint("DistanceY", -1, 1, 0, 2, Q("33 mm")))
sketch8.addConstraint(Sketcher.Constraint("DistanceX", 0, 2, -1, 1, Q("32.7 mm")))
sketch8.setExpression("Constraints[8]", "Params.sketch8_height")
sketch8.setExpression("Constraints[9]", "Params.sketch8_width")
pocket5 = body.newObject("PartDesign::Pocket", "Pocket004")
pocket5.Profile = sketch8
pocket5.setExpression("Length", "Params.pocket5_length")
pocket5.Reversed = True

sketch9 = body.newObject("Sketcher::SketchObject", "Sketch008")
sketch9.AttachmentSupport = (doc.getObject("XZ_Plane"), [""])
sketch9.MapMode = "FlatFace"
sketch9.AttachmentOffset = App.Placement(V(0, 0, 35.5), App.Rotation())
sketch9.addGeometry(Part.LineSegment(V(-31.25, 26.5, 0), V(-31.25, 24, 0)), False)
sketch9.addGeometry(Part.LineSegment(V(-31.25, 24, 0), V(-17.25, 24, 0)), False)
sketch9.addGeometry(Part.LineSegment(V(-17.25, 24, 0), V(-17.25, 26.5, 0)), False)
sketch9.addGeometry(Part.LineSegment(V(-17.25, 26.5, 0), V(-31.25, 26.5, 0)), False)
sketch9.addGeometry(Part.LineSegment(V(16.75, 26.75, 0), V(16.75, 13.75, 0)), False)
sketch9.addGeometry(Part.LineSegment(V(16.75, 13.75, 0), V(30.75, 13.75, 0)), False)
sketch9.addGeometry(Part.LineSegment(V(30.75, 13.75, 0), V(30.75, 26.75, 0)), False)
sketch9.addGeometry(Part.LineSegment(V(30.75, 26.75, 0), V(16.75, 26.75, 0)), False)
sketch9.addConstraint(Sketcher.Constraint("Coincident", 0, 2, 1, 1))
sketch9.addConstraint(Sketcher.Constraint("Coincident", 1, 2, 2, 1))
sketch9.addConstraint(Sketcher.Constraint("Coincident", 2, 2, 3, 1))
sketch9.addConstraint(Sketcher.Constraint("Coincident", 3, 2, 0, 1))
sketch9.addConstraint(Sketcher.Constraint("Coincident", 4, 2, 5, 1))
sketch9.addConstraint(Sketcher.Constraint("Coincident", 5, 2, 6, 1))
sketch9.addConstraint(Sketcher.Constraint("Coincident", 6, 2, 7, 1))
sketch9.addConstraint(Sketcher.Constraint("Coincident", 7, 2, 4, 1))
sketch9.addConstraint(Sketcher.Constraint("Vertical", 0))
sketch9.addConstraint(Sketcher.Constraint("Horizontal", 1))
sketch9.addConstraint(Sketcher.Constraint("Vertical", 2))
sketch9.addConstraint(Sketcher.Constraint("Horizontal", 3))
sketch9.addConstraint(Sketcher.Constraint("Vertical", 4))
sketch9.addConstraint(Sketcher.Constraint("Horizontal", 5))
sketch9.addConstraint(Sketcher.Constraint("Vertical", 6))
sketch9.addConstraint(Sketcher.Constraint("Horizontal", 7))
sketch9.addConstraint(Sketcher.Constraint("Equal", 3, 5))
sketch9.addConstraint(Sketcher.Constraint("DistanceX", 1, 1, 1, 2, Q("14 mm")))
sketch9.addConstraint(Sketcher.Constraint("DistanceY", 4, 2, 4, 1, Q("13 mm")))
sketch9.addConstraint(Sketcher.Constraint("DistanceY", 0, 2, 0, 1, Q("2.5 mm")))
sketch9.addConstraint(Sketcher.Constraint("DistanceY", -1, 1, 0, 2, Q("24 mm")))
sketch9.addConstraint(Sketcher.Constraint("DistanceX", 1, 2, 4, 2, Q("34 mm")))
sketch9.addConstraint(Sketcher.Constraint("DistanceX", 0, 2, -1, 1, Q("31.25 mm")))
sketch9.addConstraint(Sketcher.Constraint("DistanceY", -1, 1, 4, 2, Q("13.75 mm")))
sketch9.setExpression("Constraints[17]", "Params.sketch9_width")
sketch9.setExpression("Constraints[18]", "Params.sketch9_height")
sketch9.setExpression("Constraints[19]", "Params.sketch9_height2")
pocket6 = body.newObject("PartDesign::Pocket", "Pocket005")
pocket6.Profile = sketch9
pocket6.setExpression("Length", "Params.pocket6_length")
doc.recompute()

chamfer = body.newObject("PartDesign::Chamfer", "Chamfer")
chamfer.Base = (pocket6, edges_at(pocket6, [(-24.25, -35.5, 24), (-24.25, -35.5, 26.5)]))
chamfer.setExpression("Size", "Params.chamfer_size")

sketch10 = body.newObject("Sketcher::SketchObject", "Sketch009")
sketch10.AttachmentSupport = (doc.getObject("XZ_Plane"), [""])
sketch10.MapMode = "FlatFace"
sketch10.AttachmentOffset = App.Placement(V(0, 0, -35.5), App.Rotation())
sketch10.addGeometry(Part.Circle(V(18.6, 11.5, 0), V(0, 0, 1), 6.25), False)
sketch10.addConstraint(Sketcher.Constraint("Diameter", 0, Q("12.5 mm")))
sketch10.addConstraint(Sketcher.Constraint("DistanceX", -1, 1, 0, 3, Q("18.6 mm")))
sketch10.addConstraint(Sketcher.Constraint("DistanceY", -1, 1, 0, 3, Q("11.5 mm")))
sketch10.setExpression("Constraints[0]", "Params.sketch10_diameter")
pocket7 = body.newObject("PartDesign::Pocket", "Pocket006")
pocket7.Profile = sketch10
pocket7.setExpression("Length", "Params.pocket7_length")
pocket7.Reversed = True

sketch11 = body.newObject("Sketcher::SketchObject", "Sketch010")
sketch11.AttachmentSupport = (doc.getObject("XY_Plane"), [""])
sketch11.MapMode = "FlatFace"
sketch11.addGeometry(Part.LineSegment(V(26.25, 14.25, 0), V(26.25, 24.25, 0)), False)
sketch11.addGeometry(Part.LineSegment(V(26.25, 24.25, 0), V(31.25, 24.25, 0)), False)
sketch11.addGeometry(Part.LineSegment(V(31.25, 24.25, 0), V(31.25, 14.25, 0)), False)
sketch11.addGeometry(Part.LineSegment(V(31.25, 14.25, 0), V(26.25, 14.25, 0)), False)
sketch11.addGeometry(Part.LineSegment(V(26.25, 2.25, 0), V(26.25, 8.25, 0)), False)
sketch11.addGeometry(Part.LineSegment(V(26.25, 8.25, 0), V(31.25, 8.25, 0)), False)
sketch11.addGeometry(Part.LineSegment(V(31.25, 8.25, 0), V(31.25, 2.25, 0)), False)
sketch11.addGeometry(Part.LineSegment(V(31.25, 2.25, 0), V(26.25, 2.25, 0)), False)
sketch11.addConstraint(Sketcher.Constraint("Coincident", 0, 2, 1, 1))
sketch11.addConstraint(Sketcher.Constraint("Coincident", 1, 2, 2, 1))
sketch11.addConstraint(Sketcher.Constraint("Coincident", 2, 2, 3, 1))
sketch11.addConstraint(Sketcher.Constraint("Coincident", 3, 2, 0, 1))
sketch11.addConstraint(Sketcher.Constraint("Coincident", 4, 2, 5, 1))
sketch11.addConstraint(Sketcher.Constraint("Coincident", 5, 2, 6, 1))
sketch11.addConstraint(Sketcher.Constraint("Coincident", 6, 2, 7, 1))
sketch11.addConstraint(Sketcher.Constraint("Coincident", 7, 2, 4, 1))
sketch11.addConstraint(Sketcher.Constraint("Vertical", 0))
sketch11.addConstraint(Sketcher.Constraint("Horizontal", 1))
sketch11.addConstraint(Sketcher.Constraint("Vertical", 2))
sketch11.addConstraint(Sketcher.Constraint("Horizontal", 3))
sketch11.addConstraint(Sketcher.Constraint("Vertical", 4))
sketch11.addConstraint(Sketcher.Constraint("Horizontal", 5))
sketch11.addConstraint(Sketcher.Constraint("Vertical", 6))
sketch11.addConstraint(Sketcher.Constraint("Horizontal", 7))
sketch11.addConstraint(Sketcher.Constraint("Vertical", 3, 2, 4, 2))
sketch11.addConstraint(Sketcher.Constraint("Vertical", 2, 2, 5, 2))
sketch11.addConstraint(Sketcher.Constraint("DistanceX", 1, 1, 1, 2, Q("5 mm")))
sketch11.addConstraint(Sketcher.Constraint("DistanceY", 0, 1, 0, 2, Q("10 mm")))
sketch11.addConstraint(Sketcher.Constraint("DistanceY", 4, 1, 4, 2, Q("6 mm")))
sketch11.addConstraint(Sketcher.Constraint("DistanceY", 4, 2, 3, 2, Q("6 mm")))
sketch11.addConstraint(Sketcher.Constraint("DistanceX", -1, 1, 0, 2, Q("26.25 mm")))
sketch11.addConstraint(Sketcher.Constraint("DistanceY", -1, 1, 0, 2, Q("24.25 mm")))
sketch11.setExpression("Constraints[18]", "Params.sketch11_width")
sketch11.setExpression("Constraints[19]", "Params.sketch11_height")
sketch11.setExpression("Constraints[20]", "Params.sketch11_height2")
pocket8 = body.newObject("PartDesign::Pocket", "Pocket007")
pocket8.Profile = sketch11
pocket8.setExpression("Length", "Params.pocket8_length")
pocket8.Reversed = True
doc.recompute()

chamfer2 = body.newObject("PartDesign::Chamfer", "Chamfer001")
chamfer2.Base = (pocket8, edges_at(pocket8, [
    (0, 35.5, 0),
    (35.5, 0, 0),
    (0, -35.5, 0),
    (-35.5, 0, 0),
]))
chamfer2.setExpression("Size", "Params.chamfer2_size")

sketch12 = body.newObject("Sketcher::SketchObject", "Sketch011")
sketch12.AttachmentSupport = (doc.getObject("XZ_Plane"), [""])
sketch12.MapMode = "FlatFace"
sketch12.AttachmentOffset = App.Placement(V(0, 0, 35.5), App.Rotation())
sketch12.addGeometry(Part.Circle(V(-10.25, 21, 0), V(0, 0, 1), 2), False)
sketch12.addGeometry(Part.Circle(V(9.75, 21, 0), V(0, 0, 1), 2), False)
sketch12.addGeometry(Part.Circle(V(-10.25, 11, 0), V(0, 0, 1), 2), False)
sketch12.addGeometry(Part.Circle(V(9.75, 11, 0), V(0, 0, 1), 2), False)
sketch12.addConstraint(Sketcher.Constraint("Equal", 0, 1))
sketch12.addConstraint(Sketcher.Constraint("Equal", 1, 2))
sketch12.addConstraint(Sketcher.Constraint("Equal", 2, 3))
sketch12.addConstraint(Sketcher.Constraint("Horizontal", 0, 3, 1, 3))
sketch12.addConstraint(Sketcher.Constraint("Horizontal", 2, 3, 3, 3))
sketch12.addConstraint(Sketcher.Constraint("Vertical", 0, 3, 2, 3))
sketch12.addConstraint(Sketcher.Constraint("Vertical", 1, 3, 3, 3))
sketch12.addConstraint(Sketcher.Constraint("Diameter", 0, Q("4 mm")))
sketch12.addConstraint(Sketcher.Constraint("DistanceY", -1, 1, 0, 3, Q("21 mm")))
sketch12.addConstraint(Sketcher.Constraint("DistanceY", -1, 1, 2, 3, Q("11 mm")))
sketch12.addConstraint(Sketcher.Constraint("DistanceX", 0, 3, 1, 3, Q("20 mm")))
sketch12.addConstraint(Sketcher.Constraint("DistanceX", 0, 3, -1, 1, Q("10.25 mm")))
sketch12.setExpression("Constraints[7]", "Params.sketch12_diameter")
pocket9 = body.newObject("PartDesign::Pocket", "Pocket008")
pocket9.Profile = sketch12
pocket9.setExpression("Length", "Params.pocket9_length")
body2 = doc.addObject("PartDesign::Body", "Body001")
doc.recompute()

body.Placement = App.Placement(V(0, 0, -25.94), App.Rotation(V(0, 0, 1), 0))
boolean = body2.newObject("PartDesign::Boolean", "Boolean")
boolean.Type = "Fuse"
boolean.addObjects([body])

doc.recompute()
